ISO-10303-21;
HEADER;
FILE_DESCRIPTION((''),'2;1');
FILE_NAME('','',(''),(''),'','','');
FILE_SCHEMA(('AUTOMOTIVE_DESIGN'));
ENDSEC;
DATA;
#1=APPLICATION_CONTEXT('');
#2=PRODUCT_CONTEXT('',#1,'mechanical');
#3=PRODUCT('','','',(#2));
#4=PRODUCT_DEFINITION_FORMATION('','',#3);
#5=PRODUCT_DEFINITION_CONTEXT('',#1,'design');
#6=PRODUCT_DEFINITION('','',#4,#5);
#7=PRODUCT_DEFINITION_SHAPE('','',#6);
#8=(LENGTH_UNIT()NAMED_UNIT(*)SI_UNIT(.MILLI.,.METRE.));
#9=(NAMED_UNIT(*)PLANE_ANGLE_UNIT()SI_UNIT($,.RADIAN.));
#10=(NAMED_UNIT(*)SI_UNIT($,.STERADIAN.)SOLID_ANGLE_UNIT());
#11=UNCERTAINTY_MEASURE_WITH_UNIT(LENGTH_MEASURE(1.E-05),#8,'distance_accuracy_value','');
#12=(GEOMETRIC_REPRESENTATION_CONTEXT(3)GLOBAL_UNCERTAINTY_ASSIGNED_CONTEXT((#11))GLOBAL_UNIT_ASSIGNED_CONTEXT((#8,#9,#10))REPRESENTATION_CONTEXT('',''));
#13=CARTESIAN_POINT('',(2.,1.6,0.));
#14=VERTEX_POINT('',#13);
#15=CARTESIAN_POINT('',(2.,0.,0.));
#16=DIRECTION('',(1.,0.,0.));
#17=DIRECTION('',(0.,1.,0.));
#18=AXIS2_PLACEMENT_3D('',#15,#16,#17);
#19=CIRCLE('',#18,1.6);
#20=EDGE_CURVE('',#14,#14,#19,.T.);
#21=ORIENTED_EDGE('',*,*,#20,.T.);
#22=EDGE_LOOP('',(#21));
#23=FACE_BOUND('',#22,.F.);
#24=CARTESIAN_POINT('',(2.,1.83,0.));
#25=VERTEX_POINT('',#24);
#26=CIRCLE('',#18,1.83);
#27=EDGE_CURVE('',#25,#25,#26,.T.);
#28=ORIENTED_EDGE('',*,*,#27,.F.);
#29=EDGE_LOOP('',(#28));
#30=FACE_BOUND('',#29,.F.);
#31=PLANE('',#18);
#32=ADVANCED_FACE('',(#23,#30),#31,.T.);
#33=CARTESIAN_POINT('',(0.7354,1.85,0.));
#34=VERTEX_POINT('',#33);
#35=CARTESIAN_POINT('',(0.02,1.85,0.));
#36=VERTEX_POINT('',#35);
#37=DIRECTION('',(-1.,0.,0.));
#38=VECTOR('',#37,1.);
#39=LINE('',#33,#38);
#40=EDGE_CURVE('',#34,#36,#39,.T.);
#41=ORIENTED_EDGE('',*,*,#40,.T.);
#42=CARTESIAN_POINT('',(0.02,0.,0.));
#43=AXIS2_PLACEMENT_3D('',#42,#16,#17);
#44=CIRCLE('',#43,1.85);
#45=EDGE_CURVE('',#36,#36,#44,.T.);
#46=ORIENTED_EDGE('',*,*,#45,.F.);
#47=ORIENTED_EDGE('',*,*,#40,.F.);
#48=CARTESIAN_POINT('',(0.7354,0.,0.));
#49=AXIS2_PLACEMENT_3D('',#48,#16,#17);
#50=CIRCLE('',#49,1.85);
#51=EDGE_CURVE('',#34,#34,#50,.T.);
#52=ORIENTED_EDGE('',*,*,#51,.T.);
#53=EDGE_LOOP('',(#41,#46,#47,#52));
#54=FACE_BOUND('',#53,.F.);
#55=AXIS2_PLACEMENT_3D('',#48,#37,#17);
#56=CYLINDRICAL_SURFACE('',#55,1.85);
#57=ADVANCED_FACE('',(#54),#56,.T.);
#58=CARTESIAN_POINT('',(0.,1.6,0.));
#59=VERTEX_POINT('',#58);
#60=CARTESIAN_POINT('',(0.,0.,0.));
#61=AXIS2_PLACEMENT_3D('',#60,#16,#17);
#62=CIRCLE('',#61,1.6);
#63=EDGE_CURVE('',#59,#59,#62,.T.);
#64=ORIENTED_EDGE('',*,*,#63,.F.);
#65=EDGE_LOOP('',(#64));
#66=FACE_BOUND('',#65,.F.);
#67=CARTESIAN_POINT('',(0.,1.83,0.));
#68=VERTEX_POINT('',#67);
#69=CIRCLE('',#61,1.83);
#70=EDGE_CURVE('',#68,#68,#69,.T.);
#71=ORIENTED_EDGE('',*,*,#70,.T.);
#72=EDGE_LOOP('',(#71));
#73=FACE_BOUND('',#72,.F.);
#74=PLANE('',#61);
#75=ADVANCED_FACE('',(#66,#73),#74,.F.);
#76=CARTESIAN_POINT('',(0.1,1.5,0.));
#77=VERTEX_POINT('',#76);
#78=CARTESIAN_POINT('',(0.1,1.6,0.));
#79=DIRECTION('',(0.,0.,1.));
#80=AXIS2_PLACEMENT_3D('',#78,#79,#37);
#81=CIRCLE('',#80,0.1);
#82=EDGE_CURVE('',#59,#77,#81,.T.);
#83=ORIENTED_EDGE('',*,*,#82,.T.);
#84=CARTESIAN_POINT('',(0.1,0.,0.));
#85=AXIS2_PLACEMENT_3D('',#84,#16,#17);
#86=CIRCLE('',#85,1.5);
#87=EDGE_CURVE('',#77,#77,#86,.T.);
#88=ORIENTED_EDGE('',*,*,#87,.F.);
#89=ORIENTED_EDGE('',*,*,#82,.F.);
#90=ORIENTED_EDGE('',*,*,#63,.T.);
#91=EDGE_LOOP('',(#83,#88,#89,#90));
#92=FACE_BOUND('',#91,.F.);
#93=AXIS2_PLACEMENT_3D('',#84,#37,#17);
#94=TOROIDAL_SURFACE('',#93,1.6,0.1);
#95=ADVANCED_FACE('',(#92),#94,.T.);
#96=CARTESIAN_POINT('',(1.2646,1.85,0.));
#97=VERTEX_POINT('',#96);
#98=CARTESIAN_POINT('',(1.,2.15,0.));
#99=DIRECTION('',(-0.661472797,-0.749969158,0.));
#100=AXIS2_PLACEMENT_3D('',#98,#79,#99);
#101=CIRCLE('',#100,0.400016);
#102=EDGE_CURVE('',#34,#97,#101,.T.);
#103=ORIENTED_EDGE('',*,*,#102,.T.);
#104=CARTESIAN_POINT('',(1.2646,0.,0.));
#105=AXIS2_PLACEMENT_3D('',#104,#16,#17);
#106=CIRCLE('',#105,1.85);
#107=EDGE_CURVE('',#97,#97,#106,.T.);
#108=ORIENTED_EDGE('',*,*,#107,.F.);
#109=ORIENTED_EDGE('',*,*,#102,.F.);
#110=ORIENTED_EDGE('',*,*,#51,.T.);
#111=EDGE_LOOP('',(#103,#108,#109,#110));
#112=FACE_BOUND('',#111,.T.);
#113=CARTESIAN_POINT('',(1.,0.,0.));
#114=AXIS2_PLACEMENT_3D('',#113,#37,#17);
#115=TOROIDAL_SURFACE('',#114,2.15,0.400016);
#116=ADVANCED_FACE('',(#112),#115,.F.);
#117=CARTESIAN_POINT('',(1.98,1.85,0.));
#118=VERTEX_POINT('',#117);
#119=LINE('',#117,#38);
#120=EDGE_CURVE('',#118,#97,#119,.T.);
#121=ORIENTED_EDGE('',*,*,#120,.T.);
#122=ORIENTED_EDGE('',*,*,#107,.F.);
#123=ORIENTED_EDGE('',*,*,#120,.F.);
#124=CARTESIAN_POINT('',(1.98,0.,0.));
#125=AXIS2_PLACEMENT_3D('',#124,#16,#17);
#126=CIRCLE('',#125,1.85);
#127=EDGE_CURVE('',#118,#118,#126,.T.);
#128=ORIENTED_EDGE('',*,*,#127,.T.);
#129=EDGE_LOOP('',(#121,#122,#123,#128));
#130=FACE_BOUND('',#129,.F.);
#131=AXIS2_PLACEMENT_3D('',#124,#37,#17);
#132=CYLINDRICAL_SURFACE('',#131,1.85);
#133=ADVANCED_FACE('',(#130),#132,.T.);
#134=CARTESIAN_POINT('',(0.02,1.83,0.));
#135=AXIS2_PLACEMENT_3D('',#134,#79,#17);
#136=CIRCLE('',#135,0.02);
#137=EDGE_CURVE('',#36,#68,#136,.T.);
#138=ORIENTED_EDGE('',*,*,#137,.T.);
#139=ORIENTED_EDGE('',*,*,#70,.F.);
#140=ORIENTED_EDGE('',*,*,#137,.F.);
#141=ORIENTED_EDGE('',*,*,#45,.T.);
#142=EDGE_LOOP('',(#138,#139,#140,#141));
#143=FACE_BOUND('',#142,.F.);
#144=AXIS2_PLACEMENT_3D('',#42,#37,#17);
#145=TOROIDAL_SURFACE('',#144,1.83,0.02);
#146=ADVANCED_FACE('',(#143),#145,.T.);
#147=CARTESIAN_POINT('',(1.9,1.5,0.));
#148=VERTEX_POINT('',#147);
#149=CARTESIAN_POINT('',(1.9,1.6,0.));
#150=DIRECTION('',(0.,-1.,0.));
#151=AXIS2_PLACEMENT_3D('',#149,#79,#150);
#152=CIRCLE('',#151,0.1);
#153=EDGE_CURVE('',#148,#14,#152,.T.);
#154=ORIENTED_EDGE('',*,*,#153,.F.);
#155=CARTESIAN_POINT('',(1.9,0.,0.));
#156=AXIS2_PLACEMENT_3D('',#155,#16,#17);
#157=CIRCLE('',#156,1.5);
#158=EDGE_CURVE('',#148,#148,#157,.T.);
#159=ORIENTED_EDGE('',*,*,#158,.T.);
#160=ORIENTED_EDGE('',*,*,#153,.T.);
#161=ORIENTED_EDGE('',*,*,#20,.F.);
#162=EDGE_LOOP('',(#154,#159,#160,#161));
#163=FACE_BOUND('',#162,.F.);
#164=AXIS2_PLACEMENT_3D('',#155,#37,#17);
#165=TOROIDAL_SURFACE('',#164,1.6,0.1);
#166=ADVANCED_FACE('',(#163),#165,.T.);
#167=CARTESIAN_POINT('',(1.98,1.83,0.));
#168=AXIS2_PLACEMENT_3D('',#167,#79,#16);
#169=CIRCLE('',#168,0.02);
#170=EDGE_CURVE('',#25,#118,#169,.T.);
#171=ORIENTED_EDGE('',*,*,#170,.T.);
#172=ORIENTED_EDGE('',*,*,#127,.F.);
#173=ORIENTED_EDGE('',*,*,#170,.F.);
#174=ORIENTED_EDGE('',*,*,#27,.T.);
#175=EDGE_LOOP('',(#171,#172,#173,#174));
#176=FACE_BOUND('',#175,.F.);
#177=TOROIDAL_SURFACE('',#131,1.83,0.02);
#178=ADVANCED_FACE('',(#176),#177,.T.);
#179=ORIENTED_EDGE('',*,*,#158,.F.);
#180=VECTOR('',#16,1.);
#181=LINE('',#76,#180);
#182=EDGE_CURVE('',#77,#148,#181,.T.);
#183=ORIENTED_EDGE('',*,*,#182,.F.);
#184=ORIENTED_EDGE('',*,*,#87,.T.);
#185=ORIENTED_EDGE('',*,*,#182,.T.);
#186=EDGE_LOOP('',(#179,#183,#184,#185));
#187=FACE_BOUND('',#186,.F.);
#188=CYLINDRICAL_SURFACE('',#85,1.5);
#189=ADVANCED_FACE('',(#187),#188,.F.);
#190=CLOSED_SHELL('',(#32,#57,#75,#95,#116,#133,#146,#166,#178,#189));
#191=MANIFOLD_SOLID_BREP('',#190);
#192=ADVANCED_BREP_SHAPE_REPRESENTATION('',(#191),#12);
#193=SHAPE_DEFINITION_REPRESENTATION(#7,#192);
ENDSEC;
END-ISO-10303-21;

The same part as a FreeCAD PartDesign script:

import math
import FreeCAD as App
import Part
import Sketcher
Q = App.Units.Quantity

doc = App.newDocument("Part")
params = doc.addObject("Spreadsheet::Sheet", "Params")
for row, (alias, value) in enumerate([
    ("sketch1_radius", "0.1 mm"),
    ("sketch1_radius2", "0.4 mm"),
    ("sketch1_radius3", "0.02 mm"),
    ("sketch1_width", "1.8 mm"),
    ("sketch1_height", "0.23 mm"),
    ("revolution_angle", "360 deg"),
], start=1):
    params.set(f"A{row}", alias)
    params.set(f"B{row}", "=" + value)
    params.setAlias(f"B{row}", alias)

body = doc.addObject("PartDesign::Body", "Body")

# Sketch on XY plane
sketch1 = doc.addObject("Sketcher::SketchObject", "Sketch")
body.addObject(sketch1)
sketch1.AttachmentSupport = (doc.XY_Plane, [""])
sketch1.MapMode = "FlatFace"
sketch1.addGeometry([
    Part.ArcOfCircle(Part.Circle(App.Vector(0.02, 1.83, 0), App.Vector(0, 0, 1), 0.02), math.radians(90), math.radians(180)),  # 0
    Part.LineSegment(App.Vector(0, 1.83, 0), App.Vector(0, 1.6, 0)),  # 1
    Part.ArcOfCircle(Part.Circle(App.Vector(0.1, 1.6, 0), App.Vector(0, 0, 1), 0.1), math.radians(180), math.radians(270)),  # 2
    Part.LineSegment(App.Vector(0.1, 1.5, 0), App.Vector(1.9, 1.5, 0)),  # 3
    Part.ArcOfCircle(Part.Circle(App.Vector(1.9, 1.6, 0), App.Vector(0, 0, 1), 0.1), math.radians(-90), math.radians(0)),  # 4
    Part.LineSegment(App.Vector(2, 1.6, 0), App.Vector(2, 1.83, 0)),  # 5
    Part.ArcOfCircle(Part.Circle(App.Vector(1.98, 1.83, 0), App.Vector(0, 0, 1), 0.02), math.radians(0), math.radians(90)),  # 6
    Part.LineSegment(App.Vector(1.98, 1.85, 0), App.Vector(1.265, 1.85, 0)),  # 7
    Part.ArcOfCircle(Part.Circle(App.Vector(1, 2.15, 0), App.Vector(0, 0, 1), 0.4), math.radians(-131), math.radians(-49)),  # 8
    Part.LineSegment(App.Vector(0.735, 1.85, 0), App.Vector(0.02, 1.85, 0)),  # 9
], False)
sketch1.addConstraint([
    Sketcher.Constraint("Tangent", 0, 2, 1, 1),
    Sketcher.Constraint("Tangent", 1, 2, 2, 1),
    Sketcher.Constraint("Tangent", 2, 2, 3, 1),
    Sketcher.Constraint("Tangent", 3, 2, 4, 1),
    Sketcher.Constraint("Tangent", 4, 2, 5, 1),
    Sketcher.Constraint("Tangent", 5, 2, 6, 1),
    Sketcher.Constraint("Tangent", 6, 2, 7, 1),
    Sketcher.Constraint("Coincident", 7, 2, 8, 2),
    Sketcher.Constraint("Coincident", 8, 1, 9, 1),
    Sketcher.Constraint("Tangent", 9, 2, 0, 1),
    Sketcher.Constraint("Vertical", 1),
    Sketcher.Constraint("Horizontal", 3),
    Sketcher.Constraint("Vertical", 5),
    Sketcher.Constraint("Horizontal", 7),
    Sketcher.Constraint("Horizontal", 9),
    Sketcher.Constraint("Equal", 2, 4),
    Sketcher.Constraint("Equal", 0, 6),
    Sketcher.Constraint("PointOnObject", 0, 2, -2),
    Sketcher.Constraint("Horizontal", 0, 3, 6, 3),
    Sketcher.Constraint("Equal", 7, 9),
    Sketcher.Constraint("Radius", 2, Q("0.1 mm")),
    Sketcher.Constraint("Radius", 8, Q("0.4 mm")),
    Sketcher.Constraint("Radius", 0, Q("0.02 mm")),
    Sketcher.Constraint("DistanceX", 3, 1, 3, 2, Q("1.8 mm")),
    Sketcher.Constraint("DistanceY", 1, 2, 1, 1, Q("0.23 mm")),
    Sketcher.Constraint("DistanceY", -1, 1, 2, 3, Q("1.6 mm")),
    Sketcher.Constraint("DistanceY", 7, 2, 8, 3, Q("0.3 mm")),
])
sketch1.setExpression("Constraints[20]", "Params.sketch1_radius")
sketch1.setExpression("Constraints[21]", "Params.sketch1_radius2")
sketch1.setExpression("Constraints[22]", "Params.sketch1_radius3")
sketch1.setExpression("Constraints[23]", "Params.sketch1_width")
sketch1.setExpression("Constraints[24]", "Params.sketch1_height")
revolution = doc.addObject("PartDesign::Revolution", "Revolution")
body.addObject(revolution)
revolution.Profile = sketch1
revolution.ReferenceAxis = (sketch1, ["H_Axis"])
revolution.setExpression("Angle", "Params.revolution_angle")

doc.recompute()
